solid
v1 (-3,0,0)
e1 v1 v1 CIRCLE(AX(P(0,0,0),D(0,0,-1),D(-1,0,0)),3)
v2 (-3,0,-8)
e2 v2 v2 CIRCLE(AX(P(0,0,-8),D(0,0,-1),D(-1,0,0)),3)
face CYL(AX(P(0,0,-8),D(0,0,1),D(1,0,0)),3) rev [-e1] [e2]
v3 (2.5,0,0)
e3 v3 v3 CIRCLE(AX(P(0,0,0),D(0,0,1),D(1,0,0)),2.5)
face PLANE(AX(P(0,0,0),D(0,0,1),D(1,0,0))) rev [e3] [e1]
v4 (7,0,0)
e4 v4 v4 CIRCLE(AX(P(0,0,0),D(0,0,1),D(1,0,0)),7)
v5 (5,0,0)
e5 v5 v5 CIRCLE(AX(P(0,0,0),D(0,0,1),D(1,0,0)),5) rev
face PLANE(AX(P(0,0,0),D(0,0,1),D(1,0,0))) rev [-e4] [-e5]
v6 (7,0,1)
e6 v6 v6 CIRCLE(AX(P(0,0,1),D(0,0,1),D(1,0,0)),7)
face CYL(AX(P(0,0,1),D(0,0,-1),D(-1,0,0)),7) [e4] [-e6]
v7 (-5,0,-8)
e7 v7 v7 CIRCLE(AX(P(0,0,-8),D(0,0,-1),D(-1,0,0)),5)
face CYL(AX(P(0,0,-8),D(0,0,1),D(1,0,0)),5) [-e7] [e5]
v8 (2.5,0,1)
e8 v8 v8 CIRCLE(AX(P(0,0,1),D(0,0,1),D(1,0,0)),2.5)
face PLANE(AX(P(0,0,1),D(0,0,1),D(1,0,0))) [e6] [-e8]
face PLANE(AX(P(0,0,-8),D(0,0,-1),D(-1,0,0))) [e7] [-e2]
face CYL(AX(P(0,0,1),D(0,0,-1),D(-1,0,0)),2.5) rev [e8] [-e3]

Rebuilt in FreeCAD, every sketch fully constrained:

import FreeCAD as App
import Part
import Sketcher

doc = App.newDocument("Part")
body = doc.addObject("PartDesign::Body", "Body")

# Sketch on XY plane
sketch1 = body.newObject("Sketcher::SketchObject", "Sketch")
sketch1.AttachmentSupport = (doc.getObject("XY_Plane"), [""])
sketch1.MapMode = "FlatFace"
sketch1.addGeometry([
    Part.Circle(App.Vector(0, 0, 0), App.Vector(0, 0, 1), 7),
    Part.Circle(App.Vector(0, 0, 0), App.Vector(0, 0, 1), 2.5),
], False)
sketch1.addConstraint([
    Sketcher.Constraint("Coincident", 0, 3, -1, 1),
    Sketcher.Constraint("Coincident", 1, 3, -1, 1),
    Sketcher.Constraint("Diameter", 0, 14.0),
    Sketcher.Constraint("Diameter", 1, 5.0),
])
pad1 = body.newObject("PartDesign::Pad", "Pad")
pad1.Profile = sketch1
pad1.Length = 1

# Sketch on XY plane
sketch2 = body.newObject("Sketcher::SketchObject", "Sketch001")
sketch2.AttachmentSupport = (doc.getObject("XY_Plane"), [""])
sketch2.MapMode = "FlatFace"
sketch2.addGeometry([
    Part.Circle(App.Vector(0, 0, 0), App.Vector(0, 0, 1), 5),
    Part.Circle(App.Vector(0, 0, 0), App.Vector(0, 0, 1), 3),
], False)
sketch2.addConstraint([
    Sketcher.Constraint("Coincident", 0, 3, -1, 1),
    Sketcher.Constraint("Coincident", 1, 3, -1, 1),
    Sketcher.Constraint("Diameter", 0, 10.0),
    Sketcher.Constraint("Diameter", 1, 6.0),
])
pad2 = body.newObject("PartDesign::Pad", "Pad001")
pad2.Profile = sketch2
pad2.Length = 8
pad2.Reversed = True

doc.recompute()
